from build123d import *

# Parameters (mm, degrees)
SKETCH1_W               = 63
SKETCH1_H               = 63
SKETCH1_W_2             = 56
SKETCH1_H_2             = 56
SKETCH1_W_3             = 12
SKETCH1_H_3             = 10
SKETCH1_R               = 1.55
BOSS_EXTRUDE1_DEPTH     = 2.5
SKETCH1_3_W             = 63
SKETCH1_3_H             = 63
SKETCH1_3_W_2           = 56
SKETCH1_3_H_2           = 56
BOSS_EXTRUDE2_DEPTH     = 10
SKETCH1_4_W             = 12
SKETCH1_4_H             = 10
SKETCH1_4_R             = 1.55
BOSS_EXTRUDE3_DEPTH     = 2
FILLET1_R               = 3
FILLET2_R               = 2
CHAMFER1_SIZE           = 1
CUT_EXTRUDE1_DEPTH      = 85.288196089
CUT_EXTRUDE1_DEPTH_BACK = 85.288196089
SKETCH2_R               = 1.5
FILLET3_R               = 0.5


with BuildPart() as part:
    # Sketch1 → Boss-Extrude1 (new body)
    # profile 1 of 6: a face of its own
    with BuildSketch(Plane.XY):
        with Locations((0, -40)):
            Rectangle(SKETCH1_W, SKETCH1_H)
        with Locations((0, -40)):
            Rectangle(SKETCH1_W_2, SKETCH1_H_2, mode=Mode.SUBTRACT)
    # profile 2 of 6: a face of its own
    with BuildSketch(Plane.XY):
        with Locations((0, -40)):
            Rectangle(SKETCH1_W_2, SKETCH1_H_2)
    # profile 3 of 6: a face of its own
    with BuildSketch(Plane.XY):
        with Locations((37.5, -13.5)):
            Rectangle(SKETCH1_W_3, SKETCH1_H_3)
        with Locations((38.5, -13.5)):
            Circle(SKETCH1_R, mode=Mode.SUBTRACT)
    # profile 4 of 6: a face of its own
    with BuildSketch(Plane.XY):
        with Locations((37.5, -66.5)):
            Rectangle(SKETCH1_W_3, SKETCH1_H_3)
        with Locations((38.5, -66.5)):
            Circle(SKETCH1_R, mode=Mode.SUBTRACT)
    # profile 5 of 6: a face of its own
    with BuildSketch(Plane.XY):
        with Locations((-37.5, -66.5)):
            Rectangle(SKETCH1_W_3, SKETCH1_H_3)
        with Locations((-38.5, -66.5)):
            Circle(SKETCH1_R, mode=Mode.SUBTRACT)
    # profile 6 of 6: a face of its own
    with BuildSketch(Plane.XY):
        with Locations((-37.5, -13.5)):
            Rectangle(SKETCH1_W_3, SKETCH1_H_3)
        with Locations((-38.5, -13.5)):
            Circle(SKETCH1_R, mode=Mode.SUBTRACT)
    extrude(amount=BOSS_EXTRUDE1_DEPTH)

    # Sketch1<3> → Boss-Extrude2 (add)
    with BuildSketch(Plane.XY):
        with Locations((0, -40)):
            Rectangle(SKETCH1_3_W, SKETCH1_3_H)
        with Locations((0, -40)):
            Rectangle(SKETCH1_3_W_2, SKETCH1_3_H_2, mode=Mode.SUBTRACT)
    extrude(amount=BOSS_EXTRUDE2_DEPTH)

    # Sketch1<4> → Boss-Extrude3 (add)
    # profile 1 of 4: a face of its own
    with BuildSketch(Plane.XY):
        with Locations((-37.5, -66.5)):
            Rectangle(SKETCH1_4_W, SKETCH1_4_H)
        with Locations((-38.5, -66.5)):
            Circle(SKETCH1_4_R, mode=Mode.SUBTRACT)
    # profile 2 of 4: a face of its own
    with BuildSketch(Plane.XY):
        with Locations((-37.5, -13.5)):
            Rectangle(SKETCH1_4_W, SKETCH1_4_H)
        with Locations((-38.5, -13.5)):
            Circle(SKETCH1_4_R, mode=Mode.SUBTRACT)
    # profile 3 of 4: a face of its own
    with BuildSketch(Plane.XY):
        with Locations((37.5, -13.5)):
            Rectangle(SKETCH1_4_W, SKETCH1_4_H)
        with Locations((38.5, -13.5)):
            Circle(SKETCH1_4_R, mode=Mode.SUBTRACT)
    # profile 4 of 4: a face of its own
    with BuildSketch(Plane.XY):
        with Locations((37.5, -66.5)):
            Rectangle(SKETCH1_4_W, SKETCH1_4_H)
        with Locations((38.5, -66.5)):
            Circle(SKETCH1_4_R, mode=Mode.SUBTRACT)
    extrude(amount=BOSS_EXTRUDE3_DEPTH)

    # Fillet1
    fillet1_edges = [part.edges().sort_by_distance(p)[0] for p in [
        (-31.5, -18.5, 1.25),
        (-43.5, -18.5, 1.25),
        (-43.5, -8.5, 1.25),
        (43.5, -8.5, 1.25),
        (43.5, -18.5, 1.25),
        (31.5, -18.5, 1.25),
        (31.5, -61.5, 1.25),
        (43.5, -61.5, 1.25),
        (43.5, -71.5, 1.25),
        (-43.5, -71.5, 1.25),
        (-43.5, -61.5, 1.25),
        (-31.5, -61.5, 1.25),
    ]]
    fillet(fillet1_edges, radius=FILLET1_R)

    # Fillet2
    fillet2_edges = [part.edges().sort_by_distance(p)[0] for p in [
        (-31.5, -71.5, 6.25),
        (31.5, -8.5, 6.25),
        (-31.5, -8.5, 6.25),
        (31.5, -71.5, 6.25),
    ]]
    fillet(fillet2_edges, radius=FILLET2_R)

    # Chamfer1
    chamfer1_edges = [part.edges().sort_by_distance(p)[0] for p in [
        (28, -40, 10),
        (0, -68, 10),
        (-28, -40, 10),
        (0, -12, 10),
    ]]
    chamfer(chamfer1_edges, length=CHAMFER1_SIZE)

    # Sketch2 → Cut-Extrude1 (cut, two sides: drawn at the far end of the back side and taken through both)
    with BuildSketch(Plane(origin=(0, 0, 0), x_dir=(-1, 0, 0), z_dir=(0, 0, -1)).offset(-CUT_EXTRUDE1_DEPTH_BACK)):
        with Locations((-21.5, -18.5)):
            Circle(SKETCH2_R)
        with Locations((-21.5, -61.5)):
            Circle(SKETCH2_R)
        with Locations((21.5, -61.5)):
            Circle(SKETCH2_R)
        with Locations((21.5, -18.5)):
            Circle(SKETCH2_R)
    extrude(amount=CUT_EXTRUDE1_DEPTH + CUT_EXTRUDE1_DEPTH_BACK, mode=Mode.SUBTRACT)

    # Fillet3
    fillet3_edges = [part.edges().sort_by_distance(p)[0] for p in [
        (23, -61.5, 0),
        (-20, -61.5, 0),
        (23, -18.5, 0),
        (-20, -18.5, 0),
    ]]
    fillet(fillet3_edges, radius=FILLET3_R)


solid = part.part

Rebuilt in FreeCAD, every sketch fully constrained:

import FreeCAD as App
import Part
import Sketcher

V = App.Vector


def edges_at(feature, points):
    """Names of the edges that pass closest to the given points."""
    edges = feature.Shape.Edges
    near = lambda p: min(range(len(edges)), key=lambda i: edges[i].distToShape(Part.Vertex(*p))[0])
    return sorted({f"Edge{near(p) + 1}" for p in points})


def add_polygon(sketch, points):
    """Adds a closed chain of lines whose ends are joined by coincident constraints."""
    first, n = sketch.GeometryCount, len(points)
    for a, b in zip(points, points[1:] + points[:1]):
        sketch.addGeometry(Part.LineSegment(App.Vector(*a, 0), App.Vector(*b, 0)), False)
    for i in range(n):
        sketch.addConstraint(Sketcher.Constraint("Coincident", first + i, 2, first + (i + 1) % n, 1))

doc = App.newDocument("Part")
body = doc.addObject("PartDesign::Body", "Body")

# Sketch on XY plane
sketch1 = doc.addObject("Sketcher::SketchObject", "Sketch")
body.addObject(sketch1)
sketch1.AttachmentSupport = (doc.XY_Plane, [""])
sketch1.MapMode = "FlatFace"
add_polygon(sketch1, [(-31.5, -18.5), (-31.5, -61.5), (-43.5, -61.5), (-43.5, -71.5), (43.5, -71.5), (43.5, -61.5), (31.5, -61.5), (31.5, -18.5), (43.5, -18.5), (43.5, -8.5), (-43.5, -8.5), (-43.5, -18.5)])  # lines 0-11
sketch1.addGeometry(Part.Circle(V(-38.5, -66.5, 0), V(0, 0, 1), 1.6), False)  # 12
sketch1.addGeometry(Part.Circle(V(-38.5, -13.5, 0), V(0, 0, 1), 1.6), False)  # 13
sketch1.addGeometry(Part.Circle(V(38.5, -66.5, 0), V(0, 0, 1), 1.6), False)  # 14
sketch1.addGeometry(Part.Circle(V(38.5, -13.5, 0), V(0, 0, 1), 1.6), False)  # 15
sketch1.addConstraint([
    Sketcher.Constraint("Vertical", 0),
    Sketcher.Constraint("Horizontal", 1),
    Sketcher.Constraint("Vertical", 2),
    Sketcher.Constraint("Horizontal", 3),
    Sketcher.Constraint("Vertical", 4),
    Sketcher.Constraint("Horizontal", 5),
    Sketcher.Constraint("Vertical", 6),
    Sketcher.Constraint("Horizontal", 7),
    Sketcher.Constraint("Vertical", 8),
    Sketcher.Constraint("Horizontal", 9),
    Sketcher.Constraint("Vertical", 10),
    Sketcher.Constraint("Horizontal", 11),
    Sketcher.Constraint("Equal", 12, 13),
    Sketcher.Constraint("Equal", 13, 14),
    Sketcher.Constraint("Equal", 14, 15),
    Sketcher.Constraint("Symmetric", 12, 3, 14, 3, -2),
    Sketcher.Constraint("Symmetric", 13, 3, 15, 3, -2),
    Sketcher.Constraint("Symmetric", 1, 2, 4, 2, -2),
    Sketcher.Constraint("Symmetric", 7, 2, 10, 2, -2),
    Sketcher.Constraint("Vertical", 12, 3, 13, 3),
    Sketcher.Constraint("Vertical", 4, 2, 7, 2),
    Sketcher.Constraint("Equal", 1, 5),
    Sketcher.Constraint("Equal", 4, 8),
    Sketcher.Constraint("Diameter", 12, 3.1),
    Sketcher.Constraint("DistanceX", 1, 2, 1, 1, 12.0),
    Sketcher.Constraint("DistanceX", 3, 1, 3, 2, 87.0),
    Sketcher.Constraint("DistanceY", 0, 2, 0, 1, 43.0),
    Sketcher.Constraint("DistanceY", 2, 2, 2, 1, 10.0),
    Sketcher.Constraint("DistanceY", 12, 3, 13, 3, 53.0),
    Sketcher.Constraint("DistanceX", 12, 3, 14, 3, 77.0),
    Sketcher.Constraint("DistanceY", 12, 3, 0, 2, 5.0),
    Sketcher.Constraint("DistanceY", 12, 3, -1, 1, 66.5),
])
pad1 = doc.addObject("PartDesign::Pad", "Pad")
body.addObject(pad1)
pad1.Profile = sketch1
pad1.Length = 2.5

# Sketch on XY plane
sketch2 = doc.addObject("Sketcher::SketchObject", "Sketch001")
body.addObject(sketch2)
sketch2.AttachmentSupport = (doc.XY_Plane, [""])
sketch2.MapMode = "FlatFace"
add_polygon(sketch2, [(-32, -8), (-32, -72), (32, -72), (32, -8)])  # lines 0-3
add_polygon(sketch2, [(28, -68), (-28, -68), (-28, -12), (28, -12)])  # lines 4-7
sketch2.addConstraint([
    Sketcher.Constraint("Vertical", 0),
    Sketcher.Constraint("Horizontal", 1),
    Sketcher.Constraint("Vertical", 2),
    Sketcher.Constraint("Horizontal", 3),
    Sketcher.Constraint("Horizontal", 4),
    Sketcher.Constraint("Vertical", 5),
    Sketcher.Constraint("Horizontal", 6),
    Sketcher.Constraint("Vertical", 7),
    Sketcher.Constraint("Equal", 3, 0),
    Sketcher.Constraint("Equal", 6, 5),
    Sketcher.Constraint("DistanceX", 1, 1, 1, 2, 63.0),
    Sketcher.Constraint("DistanceX", 4, 2, 4, 1, 56.0),
    Sketcher.Constraint("DistanceX", 4, 2, -1, 1, 28.0),
    Sketcher.Constraint("DistanceY", 4, 2, -1, 1, 68.0),
    Sketcher.Constraint("DistanceX", 0, 2, -1, 1, 31.5),
    Sketcher.Constraint("DistanceY", 0, 2, -1, 1, 71.5),
])
pad2 = doc.addObject("PartDesign::Pad", "Pad001")
body.addObject(pad2)
pad2.Profile = sketch2
pad2.Length = 10

# Sketch on XY plane
sketch3 = doc.addObject("Sketcher::SketchObject", "Sketch002")
body.addObject(sketch3)
sketch3.AttachmentSupport = (doc.XY_Plane, [""])
sketch3.MapMode = "FlatFace"
add_polygon(sketch3, [(-43.5, -61.5), (-43.5, -71.5), (-31.5, -71.5), (-31.5, -61.5)])  # lines 0-3
sketch3.addGeometry(Part.Circle(V(-38.5, -66.5, 0), V(0, 0, 1), 1.6), False)  # 4
add_polygon(sketch3, [(-43.5, -8.5), (-43.5, -18.5), (-31.5, -18.5), (-31.5, -8.5)])  # lines 5-8
sketch3.addGeometry(Part.Circle(V(-38.5, -13.5, 0), V(0, 0, 1), 1.6), False)  # 9
add_polygon(sketch3, [(31.5, -8.5), (31.5, -18.5), (43.5, -18.5), (43.5, -8.5)])  # lines 10-13
sketch3.addGeometry(Part.Circle(V(38.5, -13.5, 0), V(0, 0, 1), 1.6), False)  # 14
add_polygon(sketch3, [(31.5, -61.5), (31.5, -71.5), (43.5, -71.5), (43.5, -61.5)])  # lines 15-18
sketch3.addGeometry(Part.Circle(V(38.5, -66.5, 0), V(0, 0, 1), 1.6), False)  # 19
sketch3.addConstraint([
    Sketcher.Constraint("Vertical", 0),
    Sketcher.Constraint("Horizontal", 1),
    Sketcher.Constraint("Vertical", 2),
    Sketcher.Constraint("Horizontal", 3),
    Sketcher.Constraint("Vertical", 5),
    Sketcher.Constraint("Horizontal", 6),
    Sketcher.Constraint("Vertical", 7),
    Sketcher.Constraint("Horizontal", 8),
    Sketcher.Constraint("Vertical", 10),
    Sketcher.Constraint("Horizontal", 11),
    Sketcher.Constraint("Vertical", 12),
    Sketcher.Constraint("Horizontal", 13),
    Sketcher.Constraint("Vertical", 15),
    Sketcher.Constraint("Horizontal", 16),
    Sketcher.Constraint("Vertical", 17),
    Sketcher.Constraint("Horizontal", 18),
    Sketcher.Constraint("Equal", 4, 9),
    Sketcher.Constraint("Equal", 9, 14),
    Sketcher.Constraint("Equal", 14, 19),
    Sketcher.Constraint("Symmetric", 9, 3, 14, 3, -2),
    Sketcher.Constraint("Symmetric", 4, 3, 19, 3, -2),
    Sketcher.Constraint("Symmetric", 6, 2, 10, 2, -2),
    Sketcher.Constraint("Symmetric", 8, 2, 12, 2, -2),
    Sketcher.Constraint("Symmetric", 1, 2, 15, 2, -2),
    Sketcher.Constraint("Symmetric", 3, 2, 17, 2, -2),
    Sketcher.Constraint("Vertical", 4, 3, 9, 3),
    Sketcher.Constraint("Vertical", 3, 2, 5, 2),
    Sketcher.Constraint("Vertical", 2, 2, 6, 2),
    Sketcher.Constraint("Equal", 2, 5),
    Sketcher.Constraint("Diameter", 4, 3.1),
    Sketcher.Constraint("DistanceX", 1, 1, 1, 2, 12.0),
    Sketcher.Constraint("DistanceY", 0, 2, 0, 1, 10.0),
    Sketcher.Constraint("DistanceY", 4, 3, 9, 3, 53.0),
    Sketcher.Constraint("DistanceX", 9, 3, 14, 3, 77.0),
    Sketcher.Constraint("DistanceX", 0, 2, 4, 3, 5.0),
    Sketcher.Constraint("DistanceY", 0, 2, 4, 3, 5.0),
    Sketcher.Constraint("DistanceY", 5, 2, 9, 3, 5.0),
    Sketcher.Constraint("DistanceY", 4, 3, -1, 1, 66.5),
])
pad3 = doc.addObject("PartDesign::Pad", "Pad002")
body.addObject(pad3)
pad3.Profile = sketch3
pad3.Length = 2
doc.recompute()

fillet = doc.addObject("PartDesign::Fillet", "Fillet")
body.addObject(fillet)
fillet.Base = (pad3, edges_at(pad3, [
    (-31.5, -18.5, 1.25),
    (-43.5, -18.5, 1.25),
    (-43.5, -8.5, 1.25),
    (43.5, -8.5, 1.25),
    (43.5, -18.5, 1.25),
    (31.5, -18.5, 1.25),
    (31.5, -61.5, 1.25),
    (43.5, -61.5, 1.25),
    (43.5, -71.5, 1.25),
    (-43.5, -71.5, 1.25),
    (-43.5, -61.5, 1.25),
    (-31.5, -61.5, 1.25),
]))
fillet.Radius = 3
doc.recompute()

fillet2 = doc.addObject("PartDesign::Fillet", "Fillet001")
body.addObject(fillet2)
fillet2.Base = (fillet, edges_at(fillet, [
    (-31.5, -71.5, 6.25),
    (31.5, -8.5, 6.25),
    (-31.5, -8.5, 6.25),
    (31.5, -71.5, 6.25),
]))
fillet2.Radius = 2
doc.recompute()

chamfer = doc.addObject("PartDesign::Chamfer", "Chamfer")
body.addObject(chamfer)
chamfer.Base = (fillet2, edges_at(fillet2, [
    (28, -40, 10),
    (0, -68, 10),
    (-28, -40, 10),
    (0, -12, 10),
]))
chamfer.Size = 1

# Sketch on XY plane
sketch4 = doc.addObject("Sketcher::SketchObject", "Sketch003")
body.addObject(sketch4)
sketch4.AttachmentSupport = (doc.XY_Plane, [""])
sketch4.MapMode = "FlatFace"
sketch4.addGeometry([
    Part.Circle(V(21.5, -18.5, 0), V(0, 0, 1), 1.5),
    Part.Circle(V(21.5, -61.5, 0), V(0, 0, 1), 1.5),
    Part.Circle(V(-21.5, -61.5, 0), V(0, 0, 1), 1.5),
    Part.Circle(V(-21.5, -18.5, 0), V(0, 0, 1), 1.5),
], False)
sketch4.addConstraint([
    Sketcher.Constraint("Equal", 0, 1),
    Sketcher.Constraint("Equal", 1, 2),
    Sketcher.Constraint("Equal", 2, 3),
    Sketcher.Constraint("Symmetric", 1, 3, 2, 3, -2),
    Sketcher.Constraint("Symmetric", 0, 3, 3, 3, -2),
    Sketcher.Constraint("Vertical", 0, 3, 1, 3),
    Sketcher.Constraint("Diameter", 0, 3.0),
    Sketcher.Constraint("DistanceY", 1, 3, 0, 3, 43.0),
    Sketcher.Constraint("DistanceX", 2, 3, 1, 3, 43.0),
    Sketcher.Constraint("DistanceY", 0, 3, -1, 1, 18.5),
])
pocket1 = doc.addObject("PartDesign::Pocket", "Pocket")
body.addObject(pocket1)
pocket1.Profile = sketch4
pocket1.Type = "ThroughAll"
pocket1.Midplane = True
doc.recompute()

fillet3 = doc.addObject("PartDesign::Fillet", "Fillet002")
body.addObject(fillet3)
fillet3.Base = (pocket1, edges_at(pocket1, [
    (23, -61.5, 0),
    (-20, -61.5, 0),
    (23, -18.5, 0),
    (-20, -18.5, 0),
]))
fillet3.Radius = 0.5

doc.recompute()
